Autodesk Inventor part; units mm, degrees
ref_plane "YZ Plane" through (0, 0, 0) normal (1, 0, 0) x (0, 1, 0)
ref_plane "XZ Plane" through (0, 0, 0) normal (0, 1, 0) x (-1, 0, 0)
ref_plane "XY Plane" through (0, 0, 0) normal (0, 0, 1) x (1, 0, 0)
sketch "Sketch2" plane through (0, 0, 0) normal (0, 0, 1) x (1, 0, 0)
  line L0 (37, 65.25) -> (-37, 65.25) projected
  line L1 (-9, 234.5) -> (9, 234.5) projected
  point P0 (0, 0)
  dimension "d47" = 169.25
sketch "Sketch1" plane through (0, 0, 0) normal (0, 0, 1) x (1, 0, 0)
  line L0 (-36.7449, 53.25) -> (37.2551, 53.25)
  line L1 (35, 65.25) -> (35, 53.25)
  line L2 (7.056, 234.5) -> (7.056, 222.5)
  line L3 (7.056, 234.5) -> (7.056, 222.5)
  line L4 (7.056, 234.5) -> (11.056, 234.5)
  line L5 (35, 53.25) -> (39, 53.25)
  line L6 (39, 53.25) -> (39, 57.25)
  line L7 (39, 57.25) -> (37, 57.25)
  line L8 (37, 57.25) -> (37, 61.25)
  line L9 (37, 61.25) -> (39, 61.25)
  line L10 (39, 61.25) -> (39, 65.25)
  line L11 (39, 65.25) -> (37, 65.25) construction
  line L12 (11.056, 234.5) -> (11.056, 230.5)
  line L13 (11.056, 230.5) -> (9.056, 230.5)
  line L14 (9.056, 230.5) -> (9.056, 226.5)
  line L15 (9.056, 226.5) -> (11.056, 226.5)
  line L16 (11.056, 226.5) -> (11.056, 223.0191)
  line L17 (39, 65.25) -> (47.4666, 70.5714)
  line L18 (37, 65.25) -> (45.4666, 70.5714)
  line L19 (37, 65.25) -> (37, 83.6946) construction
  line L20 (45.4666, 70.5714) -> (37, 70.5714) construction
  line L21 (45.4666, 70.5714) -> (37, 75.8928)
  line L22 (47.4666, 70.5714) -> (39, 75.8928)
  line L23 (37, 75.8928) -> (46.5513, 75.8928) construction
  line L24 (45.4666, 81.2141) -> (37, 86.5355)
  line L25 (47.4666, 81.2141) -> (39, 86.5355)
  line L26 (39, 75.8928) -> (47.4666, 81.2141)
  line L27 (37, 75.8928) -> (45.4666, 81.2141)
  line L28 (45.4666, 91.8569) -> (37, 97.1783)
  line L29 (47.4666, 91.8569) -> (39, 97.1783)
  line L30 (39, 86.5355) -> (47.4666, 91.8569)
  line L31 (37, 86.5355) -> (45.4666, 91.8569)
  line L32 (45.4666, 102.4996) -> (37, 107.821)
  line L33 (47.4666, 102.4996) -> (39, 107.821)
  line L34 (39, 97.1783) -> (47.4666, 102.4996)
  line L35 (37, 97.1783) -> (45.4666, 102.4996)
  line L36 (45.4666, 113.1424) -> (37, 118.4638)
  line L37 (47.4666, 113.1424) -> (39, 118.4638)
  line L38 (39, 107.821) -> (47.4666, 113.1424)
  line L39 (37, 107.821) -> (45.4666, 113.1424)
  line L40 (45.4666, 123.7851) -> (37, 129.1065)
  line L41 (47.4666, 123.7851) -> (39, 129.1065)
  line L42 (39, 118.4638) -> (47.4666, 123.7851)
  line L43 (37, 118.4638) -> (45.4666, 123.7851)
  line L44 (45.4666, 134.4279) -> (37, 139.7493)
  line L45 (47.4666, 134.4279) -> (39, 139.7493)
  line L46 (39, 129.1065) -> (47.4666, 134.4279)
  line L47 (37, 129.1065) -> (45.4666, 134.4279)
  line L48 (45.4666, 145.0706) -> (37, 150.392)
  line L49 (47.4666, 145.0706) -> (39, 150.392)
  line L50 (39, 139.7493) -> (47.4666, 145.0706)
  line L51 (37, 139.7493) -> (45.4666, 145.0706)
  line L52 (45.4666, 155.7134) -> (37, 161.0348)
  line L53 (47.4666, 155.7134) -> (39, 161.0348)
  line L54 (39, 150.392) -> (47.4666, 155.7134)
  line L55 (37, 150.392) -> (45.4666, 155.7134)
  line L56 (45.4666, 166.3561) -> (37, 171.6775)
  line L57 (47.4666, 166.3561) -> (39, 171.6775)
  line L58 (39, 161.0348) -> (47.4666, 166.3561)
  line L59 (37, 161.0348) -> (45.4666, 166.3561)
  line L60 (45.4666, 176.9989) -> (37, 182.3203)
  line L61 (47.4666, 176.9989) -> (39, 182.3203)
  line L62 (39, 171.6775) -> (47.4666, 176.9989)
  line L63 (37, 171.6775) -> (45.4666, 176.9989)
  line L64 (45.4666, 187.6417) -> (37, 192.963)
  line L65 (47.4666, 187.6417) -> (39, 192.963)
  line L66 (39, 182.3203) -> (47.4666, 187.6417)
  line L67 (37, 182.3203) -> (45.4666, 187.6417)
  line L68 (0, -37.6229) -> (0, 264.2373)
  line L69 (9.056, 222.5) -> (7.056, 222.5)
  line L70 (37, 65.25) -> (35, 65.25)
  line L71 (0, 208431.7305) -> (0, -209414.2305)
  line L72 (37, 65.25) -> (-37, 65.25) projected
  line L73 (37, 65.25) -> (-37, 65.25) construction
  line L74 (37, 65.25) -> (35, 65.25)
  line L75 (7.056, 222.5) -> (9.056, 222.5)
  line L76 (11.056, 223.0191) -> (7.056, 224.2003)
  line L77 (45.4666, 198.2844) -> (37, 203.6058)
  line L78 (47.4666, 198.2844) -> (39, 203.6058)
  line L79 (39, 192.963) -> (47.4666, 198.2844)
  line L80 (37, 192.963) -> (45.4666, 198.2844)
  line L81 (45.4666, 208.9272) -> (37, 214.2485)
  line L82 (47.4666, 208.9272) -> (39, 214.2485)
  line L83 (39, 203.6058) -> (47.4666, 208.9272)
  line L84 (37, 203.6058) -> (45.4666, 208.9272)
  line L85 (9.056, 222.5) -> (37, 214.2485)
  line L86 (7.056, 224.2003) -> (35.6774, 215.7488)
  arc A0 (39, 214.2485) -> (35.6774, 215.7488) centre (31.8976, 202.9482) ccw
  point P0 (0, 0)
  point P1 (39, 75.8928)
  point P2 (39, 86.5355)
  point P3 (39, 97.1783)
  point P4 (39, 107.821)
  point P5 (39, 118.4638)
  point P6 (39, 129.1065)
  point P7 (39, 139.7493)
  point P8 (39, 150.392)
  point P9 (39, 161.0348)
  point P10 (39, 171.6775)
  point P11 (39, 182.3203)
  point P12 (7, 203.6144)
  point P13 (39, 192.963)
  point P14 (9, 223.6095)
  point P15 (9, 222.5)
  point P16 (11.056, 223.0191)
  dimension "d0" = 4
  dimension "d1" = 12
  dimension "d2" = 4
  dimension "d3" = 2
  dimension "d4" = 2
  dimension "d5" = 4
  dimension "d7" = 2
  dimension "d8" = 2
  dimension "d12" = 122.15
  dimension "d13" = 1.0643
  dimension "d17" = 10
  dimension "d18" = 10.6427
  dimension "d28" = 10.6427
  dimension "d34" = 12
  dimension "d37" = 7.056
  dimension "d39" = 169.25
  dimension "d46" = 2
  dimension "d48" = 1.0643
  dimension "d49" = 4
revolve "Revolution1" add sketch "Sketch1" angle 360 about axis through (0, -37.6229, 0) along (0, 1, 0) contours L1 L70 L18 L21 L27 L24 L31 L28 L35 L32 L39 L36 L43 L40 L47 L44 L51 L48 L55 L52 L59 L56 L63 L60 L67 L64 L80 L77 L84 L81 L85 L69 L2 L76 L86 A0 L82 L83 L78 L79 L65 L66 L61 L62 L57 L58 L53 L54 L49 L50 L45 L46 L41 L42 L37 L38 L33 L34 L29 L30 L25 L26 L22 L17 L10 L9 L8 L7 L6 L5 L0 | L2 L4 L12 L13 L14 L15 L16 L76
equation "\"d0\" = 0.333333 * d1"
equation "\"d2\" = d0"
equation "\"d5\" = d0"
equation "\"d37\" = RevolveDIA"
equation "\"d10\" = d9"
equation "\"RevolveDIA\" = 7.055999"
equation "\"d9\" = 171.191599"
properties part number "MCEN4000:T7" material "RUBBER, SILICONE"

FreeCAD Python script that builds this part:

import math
import FreeCAD as App
import Part
import Sketcher
from FreeCAD import Vector
Q = App.Units.Quantity

doc = App.newDocument("Part")
body = doc.addObject("PartDesign::Body", "Body")

sketch1 = doc.addObject("Sketcher::SketchObject", "Sketch")
body.addObject(sketch1)
sketch1.AttachmentSupport = (doc.XY_Plane, [""])
sketch1.MapMode = "FlatFace"
sketch1.addGeometry(Part.LineSegment(Vector(35, 65.2, 0), Vector(35, 53.2, 0)), False)
sketch1.addGeometry(Part.LineSegment(Vector(35, 53.2, 0), Vector(39, 53.2, 0)), False)
sketch1.addGeometry(Part.LineSegment(Vector(39, 53.2, 0), Vector(39, 57.2, 0)), False)
sketch1.addGeometry(Part.LineSegment(Vector(39, 57.2, 0), Vector(37, 57.2, 0)), False)
sketch1.addGeometry(Part.LineSegment(Vector(37, 57.2, 0), Vector(37, 61.2, 0)), False)
sketch1.addGeometry(Part.LineSegment(Vector(37, 61.2, 0), Vector(39, 61.2, 0)), False)
sketch1.addGeometry(Part.LineSegment(Vector(39, 61.2, 0), Vector(39, 65.2, 0)), False)
sketch1.addGeometry(Part.LineSegment(Vector(39, 65.2, 0), Vector(47.5, 70.6, 0)), False)
sketch1.addGeometry(Part.LineSegment(Vector(47.5, 70.6, 0), Vector(39, 75.9, 0)), False)
sketch1.addGeometry(Part.LineSegment(Vector(39, 75.9, 0), Vector(47.5, 81.2, 0)), False)
sketch1.addGeometry(Part.LineSegment(Vector(47.5, 81.2, 0), Vector(39, 86.5, 0)), False)
sketch1.addGeometry(Part.LineSegment(Vector(39, 86.5, 0), Vector(47.5, 91.9, 0)), False)
sketch1.addGeometry(Part.LineSegment(Vector(47.5, 91.9, 0), Vector(39, 97.2, 0)), False)
sketch1.addGeometry(Part.LineSegment(Vector(39, 97.2, 0), Vector(47.5, 102.5, 0)), False)
sketch1.addGeometry(Part.LineSegment(Vector(47.5, 102.5, 0), Vector(39, 107.8, 0)), False)
sketch1.addGeometry(Part.LineSegment(Vector(39, 107.8, 0), Vector(47.5, 113.1, 0)), False)
sketch1.addGeometry(Part.LineSegment(Vector(47.5, 113.1, 0), Vector(39, 118.5, 0)), False)
sketch1.addGeometry(Part.LineSegment(Vector(39, 118.5, 0), Vector(47.5, 123.8, 0)), False)
sketch1.addGeometry(Part.LineSegment(Vector(47.5, 123.8, 0), Vector(39, 129.1, 0)), False)
sketch1.addGeometry(Part.LineSegment(Vector(39, 129.1, 0), Vector(47.5, 134.4, 0)), False)
sketch1.addGeometry(Part.LineSegment(Vector(47.5, 134.4, 0), Vector(39, 139.7, 0)), False)
sketch1.addGeometry(Part.LineSegment(Vector(39, 139.7, 0), Vector(47.5, 145.1, 0)), False)
sketch1.addGeometry(Part.LineSegment(Vector(47.5, 145.1, 0), Vector(39, 150.4, 0)), False)
sketch1.addGeometry(Part.LineSegment(Vector(39, 150.4, 0), Vector(47.5, 155.7, 0)), False)
sketch1.addGeometry(Part.LineSegment(Vector(47.5, 155.7, 0), Vector(39, 161, 0)), False)
sketch1.addGeometry(Part.LineSegment(Vector(39, 161, 0), Vector(47.5, 166.4, 0)), False)
sketch1.addGeometry(Part.LineSegment(Vector(47.5, 166.4, 0), Vector(39, 171.7, 0)), False)
sketch1.addGeometry(Part.LineSegment(Vector(39, 171.7, 0), Vector(47.5, 177, 0)), False)
sketch1.addGeometry(Part.LineSegment(Vector(47.5, 177, 0), Vector(39, 182.3, 0)), False)
sketch1.addGeometry(Part.LineSegment(Vector(39, 182.3, 0), Vector(47.5, 187.6, 0)), False)
sketch1.addGeometry(Part.LineSegment(Vector(47.5, 187.6, 0), Vector(39, 193, 0)), False)
sketch1.addGeometry(Part.LineSegment(Vector(39, 193, 0), Vector(47.5, 198.3, 0)), False)
sketch1.addGeometry(Part.LineSegment(Vector(47.5, 198.3, 0), Vector(39, 203.6, 0)), False)
sketch1.addGeometry(Part.LineSegment(Vector(39, 203.6, 0), Vector(47.5, 208.9, 0)), False)
sketch1.addGeometry(Part.LineSegment(Vector(47.5, 208.9, 0), Vector(39, 214.2, 0)), False)
sketch1.addGeometry(Part.ArcOfCircle(Part.Circle(Vector(31.9, 202.9, 0), Vector(0, 0, 1), 13.3), math.radians(57.85), math.radians(73.55)), False)
sketch1.addGeometry(Part.LineSegment(Vector(35.7, 215.7, 0), Vector(11.1, 223, 0)), False)
sketch1.addGeometry(Part.LineSegment(Vector(11.1, 223, 0), Vector(11.1, 226.5, 0)), False)
sketch1.addGeometry(Part.LineSegment(Vector(11.1, 226.5, 0), Vector(9.1, 226.5, 0)), False)
sketch1.addGeometry(Part.LineSegment(Vector(9.1, 226.5, 0), Vector(9.1, 230.5, 0)), False)
sketch1.addGeometry(Part.LineSegment(Vector(9.1, 230.5, 0), Vector(11.1, 230.5, 0)), False)
sketch1.addGeometry(Part.LineSegment(Vector(11.1, 230.5, 0), Vector(11.1, 234.5, 0)), False)
sketch1.addGeometry(Part.LineSegment(Vector(11.1, 234.5, 0), Vector(7.1, 234.5, 0)), False)
sketch1.addGeometry(Part.LineSegment(Vector(7.1, 234.5, 0), Vector(7.1, 222.5, 0)), False)
sketch1.addGeometry(Part.LineSegment(Vector(7.1, 222.5, 0), Vector(9.1, 222.5, 0)), False)
sketch1.addGeometry(Part.LineSegment(Vector(9.1, 222.5, 0), Vector(37, 214.2, 0)), False)
sketch1.addGeometry(Part.LineSegment(Vector(37, 214.2, 0), Vector(45.5, 208.9, 0)), False)
sketch1.addGeometry(Part.LineSegment(Vector(45.5, 208.9, 0), Vector(37, 203.6, 0)), False)
sketch1.addGeometry(Part.LineSegment(Vector(37, 203.6, 0), Vector(45.5, 198.3, 0)), False)
sketch1.addGeometry(Part.LineSegment(Vector(45.5, 198.3, 0), Vector(37, 193, 0)), False)
sketch1.addGeometry(Part.LineSegment(Vector(37, 193, 0), Vector(45.5, 187.6, 0)), False)
sketch1.addGeometry(Part.LineSegment(Vector(45.5, 187.6, 0), Vector(37, 182.3, 0)), False)
sketch1.addGeometry(Part.LineSegment(Vector(37, 182.3, 0), Vector(45.5, 177, 0)), False)
sketch1.addGeometry(Part.LineSegment(Vector(45.5, 177, 0), Vector(37, 171.7, 0)), False)
sketch1.addGeometry(Part.LineSegment(Vector(37, 171.7, 0), Vector(45.5, 166.4, 0)), False)
sketch1.addGeometry(Part.LineSegment(Vector(45.5, 166.4, 0), Vector(37, 161, 0)), False)
sketch1.addGeometry(Part.LineSegment(Vector(37, 161, 0), Vector(45.5, 155.7, 0)), False)
sketch1.addGeometry(Part.LineSegment(Vector(45.5, 155.7, 0), Vector(37, 150.4, 0)), False)
sketch1.addGeometry(Part.LineSegment(Vector(37, 150.4, 0), Vector(45.5, 145.1, 0)), False)
sketch1.addGeometry(Part.LineSegment(Vector(45.5, 145.1, 0), Vector(37, 139.7, 0)), False)
sketch1.addGeometry(Part.LineSegment(Vector(37, 139.7, 0), Vector(45.5, 134.4, 0)), False)
sketch1.addGeometry(Part.LineSegment(Vector(45.5, 134.4, 0), Vector(37, 129.1, 0)), False)
sketch1.addGeometry(Part.LineSegment(Vector(37, 129.1, 0), Vector(45.5, 123.8, 0)), False)
sketch1.addGeometry(Part.LineSegment(Vector(45.5, 123.8, 0), Vector(37, 118.5, 0)), False)
sketch1.addGeometry(Part.LineSegment(Vector(37, 118.5, 0), Vector(45.5, 113.1, 0)), False)
sketch1.addGeometry(Part.LineSegment(Vector(45.5, 113.1, 0), Vector(37, 107.8, 0)), False)
sketch1.addGeometry(Part.LineSegment(Vector(37, 107.8, 0), Vector(45.5, 102.5, 0)), False)
sketch1.addGeometry(Part.LineSegment(Vector(45.5, 102.5, 0), Vector(37, 97.2, 0)), False)
sketch1.addGeometry(Part.LineSegment(Vector(37, 97.2, 0), Vector(45.5, 91.9, 0)), False)
sketch1.addGeometry(Part.LineSegment(Vector(45.5, 91.9, 0), Vector(37, 86.5, 0)), False)
sketch1.addGeometry(Part.LineSegment(Vector(37, 86.5, 0), Vector(45.5, 81.2, 0)), False)
sketch1.addGeometry(Part.LineSegment(Vector(45.5, 81.2, 0), Vector(37, 75.9, 0)), False)
sketch1.addGeometry(Part.LineSegment(Vector(37, 75.9, 0), Vector(45.5, 70.6, 0)), False)
sketch1.addGeometry(Part.LineSegment(Vector(45.5, 70.6, 0), Vector(37, 65.2, 0)), False)
sketch1.addGeometry(Part.LineSegment(Vector(37, 65.2, 0), Vector(35, 65.2, 0)), False)
sketch1.addConstraint(Sketcher.Constraint("Coincident", 0, 2, 1, 1))
sketch1.addConstraint(Sketcher.Constraint("Coincident", 1, 2, 2, 1))
sketch1.addConstraint(Sketcher.Constraint("Coincident", 2, 2, 3, 1))
sketch1.addConstraint(Sketcher.Constraint("Coincident", 3, 2, 4, 1))
sketch1.addConstraint(Sketcher.Constraint("Coincident", 4, 2, 5, 1))
sketch1.addConstraint(Sketcher.Constraint("Coincident", 5, 2, 6, 1))
sketch1.addConstraint(Sketcher.Constraint("Coincident", 6, 2, 7, 1))
sketch1.addConstraint(Sketcher.Constraint("Coincident", 7, 2, 8, 1))
sketch1.addConstraint(Sketcher.Constraint("Coincident", 8, 2, 9, 1))
sketch1.addConstraint(Sketcher.Constraint("Coincident", 9, 2, 10, 1))
sketch1.addConstraint(Sketcher.Constraint("Coincident", 10, 2, 11, 1))
sketch1.addConstraint(Sketcher.Constraint("Coincident", 11, 2, 12, 1))
sketch1.addConstraint(Sketcher.Constraint("Coincident", 12, 2, 13, 1))
sketch1.addConstraint(Sketcher.Constraint("Coincident", 13, 2, 14, 1))
sketch1.addConstraint(Sketcher.Constraint("Coincident", 14, 2, 15, 1))
sketch1.addConstraint(Sketcher.Constraint("Coincident", 15, 2, 16, 1))
sketch1.addConstraint(Sketcher.Constraint("Coincident", 16, 2, 17, 1))
sketch1.addConstraint(Sketcher.Constraint("Coincident", 17, 2, 18, 1))
sketch1.addConstraint(Sketcher.Constraint("Coincident", 18, 2, 19, 1))
sketch1.addConstraint(Sketcher.Constraint("Coincident", 19, 2, 20, 1))
sketch1.addConstraint(Sketcher.Constraint("Coincident", 20, 2, 21, 1))
sketch1.addConstraint(Sketcher.Constraint("Coincident", 21, 2, 22, 1))
sketch1.addConstraint(Sketcher.Constraint("Coincident", 22, 2, 23, 1))
sketch1.addConstraint(Sketcher.Constraint("Coincident", 23, 2, 24, 1))
sketch1.addConstraint(Sketcher.Constraint("Coincident", 24, 2, 25, 1))
sketch1.addConstraint(Sketcher.Constraint("Coincident", 25, 2, 26, 1))
sketch1.addConstraint(Sketcher.Constraint("Coincident", 26, 2, 27, 1))
sketch1.addConstraint(Sketcher.Constraint("Coincident", 27, 2, 28, 1))
sketch1.addConstraint(Sketcher.Constraint("Coincident", 28, 2, 29, 1))
sketch1.addConstraint(Sketcher.Constraint("Coincident", 29, 2, 30, 1))
sketch1.addConstraint(Sketcher.Constraint("Coincident", 30, 2, 31, 1))
sketch1.addConstraint(Sketcher.Constraint("Coincident", 31, 2, 32, 1))
sketch1.addConstraint(Sketcher.Constraint("Coincident", 32, 2, 33, 1))
sketch1.addConstraint(Sketcher.Constraint("Coincident", 33, 2, 34, 1))
sketch1.addConstraint(Sketcher.Constraint("Tangent", 34, 2, 35, 1))
sketch1.addConstraint(Sketcher.Constraint("Tangent", 35, 2, 36, 1))
sketch1.addConstraint(Sketcher.Constraint("Coincident", 36, 2, 37, 1))
sketch1.addConstraint(Sketcher.Constraint("Coincident", 37, 2, 38, 1))
sketch1.addConstraint(Sketcher.Constraint("Coincident", 38, 2, 39, 1))
sketch1.addConstraint(Sketcher.Constraint("Coincident", 39, 2, 40, 1))
sketch1.addConstraint(Sketcher.Constraint("Coincident", 40, 2, 41, 1))
sketch1.addConstraint(Sketcher.Constraint("Coincident", 41, 2, 42, 1))
sketch1.addConstraint(Sketcher.Constraint("Coincident", 42, 2, 43, 1))
sketch1.addConstraint(Sketcher.Constraint("Coincident", 43, 2, 44, 1))
sketch1.addConstraint(Sketcher.Constraint("Coincident", 44, 2, 45, 1))
sketch1.addConstraint(Sketcher.Constraint("Coincident", 45, 2, 46, 1))
sketch1.addConstraint(Sketcher.Constraint("Coincident", 46, 2, 47, 1))
sketch1.addConstraint(Sketcher.Constraint("Coincident", 47, 2, 48, 1))
sketch1.addConstraint(Sketcher.Constraint("Coincident", 48, 2, 49, 1))
sketch1.addConstraint(Sketcher.Constraint("Coincident", 49, 2, 50, 1))
sketch1.addConstraint(Sketcher.Constraint("Coincident", 50, 2, 51, 1))
sketch1.addConstraint(Sketcher.Constraint("Coincident", 51, 2, 52, 1))
sketch1.addConstraint(Sketcher.Constraint("Coincident", 52, 2, 53, 1))
sketch1.addConstraint(Sketcher.Constraint("Coincident", 53, 2, 54, 1))
sketch1.addConstraint(Sketcher.Constraint("Coincident", 54, 2, 55, 1))
sketch1.addConstraint(Sketcher.Constraint("Coincident", 55, 2, 56, 1))
sketch1.addConstraint(Sketcher.Constraint("Coincident", 56, 2, 57, 1))
sketch1.addConstraint(Sketcher.Constraint("Coincident", 57, 2, 58, 1))
sketch1.addConstraint(Sketcher.Constraint("Coincident", 58, 2, 59, 1))
sketch1.addConstraint(Sketcher.Constraint("Coincident", 59, 2, 60, 1))
sketch1.addConstraint(Sketcher.Constraint("Coincident", 60, 2, 61, 1))
sketch1.addConstraint(Sketcher.Constraint("Coincident", 61, 2, 62, 1))
sketch1.addConstraint(Sketcher.Constraint("Coincident", 62, 2, 63, 1))
sketch1.addConstraint(Sketcher.Constraint("Coincident", 63, 2, 64, 1))
sketch1.addConstraint(Sketcher.Constraint("Coincident", 64, 2, 65, 1))
sketch1.addConstraint(Sketcher.Constraint("Coincident", 65, 2, 66, 1))
sketch1.addConstraint(Sketcher.Constraint("Coincident", 66, 2, 67, 1))
sketch1.addConstraint(Sketcher.Constraint("Coincident", 67, 2, 68, 1))
sketch1.addConstraint(Sketcher.Constraint("Coincident", 68, 2, 69, 1))
sketch1.addConstraint(Sketcher.Constraint("Coincident", 69, 2, 70, 1))
sketch1.addConstraint(Sketcher.Constraint("Coincident", 70, 2, 71, 1))
sketch1.addConstraint(Sketcher.Constraint("Coincident", 71, 2, 72, 1))
sketch1.addConstraint(Sketcher.Constraint("Coincident", 72, 2, 73, 1))
sketch1.addConstraint(Sketcher.Constraint("Coincident", 73, 2, 74, 1))
sketch1.addConstraint(Sketcher.Constraint("Coincident", 74, 2, 0, 1))
sketch1.addConstraint(Sketcher.Constraint("Vertical", 0))
sketch1.addConstraint(Sketcher.Constraint("Horizontal", 1))
sketch1.addConstraint(Sketcher.Constraint("Vertical", 2))
sketch1.addConstraint(Sketcher.Constraint("Horizontal", 3))
sketch1.addConstraint(Sketcher.Constraint("Vertical", 4))
sketch1.addConstraint(Sketcher.Constraint("Horizontal", 5))
sketch1.addConstraint(Sketcher.Constraint("Vertical", 6))
sketch1.addConstraint(Sketcher.Constraint("Vertical", 37))
sketch1.addConstraint(Sketcher.Constraint("Horizontal", 38))
sketch1.addConstraint(Sketcher.Constraint("Vertical", 39))
sketch1.addConstraint(Sketcher.Constraint("Horizontal", 40))
sketch1.addConstraint(Sketcher.Constraint("Vertical", 41))
sketch1.addConstraint(Sketcher.Constraint("Horizontal", 42))
sketch1.addConstraint(Sketcher.Constraint("Vertical", 43))
sketch1.addConstraint(Sketcher.Constraint("Horizontal", 44))
sketch1.addConstraint(Sketcher.Constraint("Horizontal", 74))
sketch1.addConstraint(Sketcher.Constraint("Parallel", 7, 9))
sketch1.addConstraint(Sketcher.Constraint("Parallel", 8, 10))
sketch1.addConstraint(Sketcher.Constraint("Parallel", 9, 11))
sketch1.addConstraint(Sketcher.Constraint("Parallel", 10, 12))
sketch1.addConstraint(Sketcher.Constraint("Parallel", 11, 13))
sketch1.addConstraint(Sketcher.Constraint("Parallel", 12, 14))
sketch1.addConstraint(Sketcher.Constraint("Parallel", 13, 15))
sketch1.addConstraint(Sketcher.Constraint("Parallel", 14, 16))
sketch1.addConstraint(Sketcher.Constraint("Parallel", 15, 17))
sketch1.addConstraint(Sketcher.Constraint("Parallel", 16, 18))
sketch1.addConstraint(Sketcher.Constraint("Parallel", 17, 19))
sketch1.addConstraint(Sketcher.Constraint("Parallel", 18, 20))
sketch1.addConstraint(Sketcher.Constraint("Parallel", 19, 21))
sketch1.addConstraint(Sketcher.Constraint("Parallel", 20, 22))
sketch1.addConstraint(Sketcher.Constraint("Parallel", 21, 23))
sketch1.addConstraint(Sketcher.Constraint("Parallel", 22, 24))
sketch1.addConstraint(Sketcher.Constraint("Parallel", 23, 25))
sketch1.addConstraint(Sketcher.Constraint("Parallel", 24, 26))
sketch1.addConstraint(Sketcher.Constraint("Parallel", 25, 27))
sketch1.addConstraint(Sketcher.Constraint("Parallel", 26, 28))
sketch1.addConstraint(Sketcher.Constraint("Parallel", 27, 29))
sketch1.addConstraint(Sketcher.Constraint("Parallel", 28, 30))
sketch1.addConstraint(Sketcher.Constraint("Parallel", 29, 31))
sketch1.addConstraint(Sketcher.Constraint("Parallel", 30, 32))
sketch1.addConstraint(Sketcher.Constraint("Parallel", 31, 33))
sketch1.addConstraint(Sketcher.Constraint("Parallel", 32, 34))
sketch1.addConstraint(Sketcher.Constraint("Parallel", 36, 45))
sketch1.addConstraint(Sketcher.Constraint("Parallel", 34, 46))
sketch1.addConstraint(Sketcher.Constraint("Parallel", 33, 47))
sketch1.addConstraint(Sketcher.Constraint("Parallel", 46, 48))
sketch1.addConstraint(Sketcher.Constraint("Parallel", 47, 49))
sketch1.addConstraint(Sketcher.Constraint("Parallel", 48, 50))
sketch1.addConstraint(Sketcher.Constraint("Parallel", 49, 51))
sketch1.addConstraint(Sketcher.Constraint("Parallel", 50, 52))
sketch1.addConstraint(Sketcher.Constraint("Parallel", 51, 53))
sketch1.addConstraint(Sketcher.Constraint("Parallel", 52, 54))
sketch1.addConstraint(Sketcher.Constraint("Parallel", 53, 55))
sketch1.addConstraint(Sketcher.Constraint("Parallel", 54, 56))
sketch1.addConstraint(Sketcher.Constraint("Parallel", 55, 57))
sketch1.addConstraint(Sketcher.Constraint("Parallel", 56, 58))
sketch1.addConstraint(Sketcher.Constraint("Parallel", 57, 59))
sketch1.addConstraint(Sketcher.Constraint("Parallel", 58, 60))
sketch1.addConstraint(Sketcher.Constraint("Parallel", 59, 61))
sketch1.addConstraint(Sketcher.Constraint("Parallel", 60, 62))
sketch1.addConstraint(Sketcher.Constraint("Parallel", 61, 63))
sketch1.addConstraint(Sketcher.Constraint("Parallel", 62, 64))
sketch1.addConstraint(Sketcher.Constraint("Parallel", 63, 65))
sketch1.addConstraint(Sketcher.Constraint("Parallel", 64, 66))
sketch1.addConstraint(Sketcher.Constraint("Parallel", 65, 67))
sketch1.addConstraint(Sketcher.Constraint("Parallel", 66, 68))
sketch1.addConstraint(Sketcher.Constraint("Parallel", 67, 69))
sketch1.addConstraint(Sketcher.Constraint("Parallel", 68, 70))
sketch1.addConstraint(Sketcher.Constraint("Parallel", 69, 71))
sketch1.addConstraint(Sketcher.Constraint("Parallel", 70, 72))
sketch1.addConstraint(Sketcher.Constraint("Parallel", 71, 73))
sketch1.addConstraint(Sketcher.Constraint("Horizontal", 34, 2, 45, 2))
sketch1.addConstraint(Sketcher.Constraint("Horizontal", 33, 2, 46, 2))
sketch1.addConstraint(Sketcher.Constraint("Horizontal", 32, 2, 47, 2))
sketch1.addConstraint(Sketcher.Constraint("Horizontal", 31, 2, 48, 2))
sketch1.addConstraint(Sketcher.Constraint("Horizontal", 30, 2, 49, 2))
sketch1.addConstraint(Sketcher.Constraint("Horizontal", 29, 2, 50, 2))
sketch1.addConstraint(Sketcher.Constraint("Horizontal", 28, 2, 51, 2))
sketch1.addConstraint(Sketcher.Constraint("Horizontal", 27, 2, 52, 2))
sketch1.addConstraint(Sketcher.Constraint("Horizontal", 26, 2, 53, 2))
sketch1.addConstraint(Sketcher.Constraint("Horizontal", 25, 2, 54, 2))
sketch1.addConstraint(Sketcher.Constraint("Horizontal", 24, 2, 55, 2))
sketch1.addConstraint(Sketcher.Constraint("Horizontal", 23, 2, 56, 2))
sketch1.addConstraint(Sketcher.Constraint("Horizontal", 22, 2, 57, 2))
sketch1.addConstraint(Sketcher.Constraint("Horizontal", 21, 2, 58, 2))
sketch1.addConstraint(Sketcher.Constraint("Horizontal", 20, 2, 59, 2))
sketch1.addConstraint(Sketcher.Constraint("Horizontal", 19, 2, 60, 2))
sketch1.addConstraint(Sketcher.Constraint("Horizontal", 18, 2, 61, 2))
sketch1.addConstraint(Sketcher.Constraint("Horizontal", 17, 2, 62, 2))
sketch1.addConstraint(Sketcher.Constraint("Horizontal", 16, 2, 63, 2))
sketch1.addConstraint(Sketcher.Constraint("Horizontal", 15, 2, 64, 2))
sketch1.addConstraint(Sketcher.Constraint("Horizontal", 14, 2, 65, 2))
sketch1.addConstraint(Sketcher.Constraint("Horizontal", 13, 2, 66, 2))
sketch1.addConstraint(Sketcher.Constraint("Horizontal", 12, 2, 67, 2))
sketch1.addConstraint(Sketcher.Constraint("Horizontal", 11, 2, 68, 2))
sketch1.addConstraint(Sketcher.Constraint("Horizontal", 10, 2, 69, 2))
sketch1.addConstraint(Sketcher.Constraint("Horizontal", 9, 2, 70, 2))
sketch1.addConstraint(Sketcher.Constraint("Horizontal", 8, 2, 71, 2))
sketch1.addConstraint(Sketcher.Constraint("Horizontal", 7, 2, 72, 2))
sketch1.addConstraint(Sketcher.Constraint("Horizontal", 6, 2, 73, 2))
sketch1.addConstraint(Sketcher.Constraint("Vertical", 2, 2, 5, 2))
sketch1.addConstraint(Sketcher.Constraint("Vertical", 6, 2, 8, 2))
sketch1.addConstraint(Sketcher.Constraint("Vertical", 7, 2, 9, 2))
sketch1.addConstraint(Sketcher.Constraint("Vertical", 8, 2, 10, 2))
sketch1.addConstraint(Sketcher.Constraint("Vertical", 9, 2, 11, 2))
sketch1.addConstraint(Sketcher.Constraint("Vertical", 10, 2, 12, 2))
sketch1.addConstraint(Sketcher.Constraint("Vertical", 11, 2, 13, 2))
sketch1.addConstraint(Sketcher.Constraint("Vertical", 12, 2, 14, 2))
sketch1.addConstraint(Sketcher.Constraint("Vertical", 13, 2, 15, 2))
sketch1.addConstraint(Sketcher.Constraint("Vertical", 14, 2, 16, 2))
sketch1.addConstraint(Sketcher.Constraint("Vertical", 15, 2, 17, 2))
sketch1.addConstraint(Sketcher.Constraint("Vertical", 16, 2, 18, 2))
sketch1.addConstraint(Sketcher.Constraint("Vertical", 17, 2, 19, 2))
sketch1.addConstraint(Sketcher.Constraint("Vertical", 18, 2, 20, 2))
sketch1.addConstraint(Sketcher.Constraint("Vertical", 19, 2, 21, 2))
sketch1.addConstraint(Sketcher.Constraint("Vertical", 20, 2, 22, 2))
sketch1.addConstraint(Sketcher.Constraint("Vertical", 21, 2, 23, 2))
sketch1.addConstraint(Sketcher.Constraint("Vertical", 22, 2, 24, 2))
sketch1.addConstraint(Sketcher.Constraint("Vertical", 23, 2, 25, 2))
sketch1.addConstraint(Sketcher.Constraint("Vertical", 24, 2, 26, 2))
sketch1.addConstraint(Sketcher.Constraint("Vertical", 25, 2, 27, 2))
sketch1.addConstraint(Sketcher.Constraint("Vertical", 26, 2, 28, 2))
sketch1.addConstraint(Sketcher.Constraint("Vertical", 27, 2, 29, 2))
sketch1.addConstraint(Sketcher.Constraint("Vertical", 28, 2, 30, 2))
sketch1.addConstraint(Sketcher.Constraint("Vertical", 29, 2, 31, 2))
sketch1.addConstraint(Sketcher.Constraint("Vertical", 30, 2, 32, 2))
sketch1.addConstraint(Sketcher.Constraint("Vertical", 31, 2, 33, 2))
sketch1.addConstraint(Sketcher.Constraint("Vertical", 32, 2, 34, 2))
sketch1.addConstraint(Sketcher.Constraint("Vertical", 37, 2, 40, 2))
sketch1.addConstraint(Sketcher.Constraint("Vertical", 39, 2, 44, 2))
sketch1.addConstraint(Sketcher.Constraint("Vertical", 4, 2, 45, 2))
sketch1.addConstraint(Sketcher.Constraint("Equal", 5, 38))
sketch1.addConstraint(Sketcher.Constraint("Equal", 1, 42))
sketch1.addConstraint(Sketcher.Constraint("Equal", 40, 44))
sketch1.addConstraint(Sketcher.Constraint("Equal", 42, 2))
sketch1.addConstraint(Sketcher.Constraint("Equal", 2, 4))
sketch1.addConstraint(Sketcher.Constraint("Equal", 4, 6))
sketch1.addConstraint(Sketcher.Constraint("Equal", 6, 39))
sketch1.addConstraint(Sketcher.Constraint("Equal", 39, 41))
sketch1.addConstraint(Sketcher.Constraint("Equal", 0, 43))
sketch1.addConstraint(Sketcher.Constraint("Equal", 7, 8))
sketch1.addConstraint(Sketcher.Constraint("DistanceX", 1, 1, 1, 2, Q("4 mm")))
sketch1.addConstraint(Sketcher.Constraint("Distance", 7, Q("10 mm")))
sketch1.addConstraint(Sketcher.Constraint("DistanceX", -1, 1, 42, 2, Q("7.056 mm")))
sketch1.addConstraint(Sketcher.Constraint("DistanceX", -1, 1, 0, 2, Q("35 mm")))
sketch1.addConstraint(Sketcher.Constraint("DistanceY", -1, 1, 37, 2, Q("226.5 mm")))
sketch1.addConstraint(Sketcher.Constraint("Angle", 7, Q("32.15 deg")))
sketch1.addConstraint(Sketcher.Constraint("Angle", 36, Q("163.5489 deg")))
sketch1.addConstraint(Sketcher.Constraint("Radius", 35, Q("13.3497 mm")))
revolution = doc.addObject("PartDesign::Revolution", "Revolution")
body.addObject(revolution)
revolution.Profile = sketch1
revolution.ReferenceAxis = (sketch1, ["V_Axis"])
revolution.Angle = 360

doc.recompute()
